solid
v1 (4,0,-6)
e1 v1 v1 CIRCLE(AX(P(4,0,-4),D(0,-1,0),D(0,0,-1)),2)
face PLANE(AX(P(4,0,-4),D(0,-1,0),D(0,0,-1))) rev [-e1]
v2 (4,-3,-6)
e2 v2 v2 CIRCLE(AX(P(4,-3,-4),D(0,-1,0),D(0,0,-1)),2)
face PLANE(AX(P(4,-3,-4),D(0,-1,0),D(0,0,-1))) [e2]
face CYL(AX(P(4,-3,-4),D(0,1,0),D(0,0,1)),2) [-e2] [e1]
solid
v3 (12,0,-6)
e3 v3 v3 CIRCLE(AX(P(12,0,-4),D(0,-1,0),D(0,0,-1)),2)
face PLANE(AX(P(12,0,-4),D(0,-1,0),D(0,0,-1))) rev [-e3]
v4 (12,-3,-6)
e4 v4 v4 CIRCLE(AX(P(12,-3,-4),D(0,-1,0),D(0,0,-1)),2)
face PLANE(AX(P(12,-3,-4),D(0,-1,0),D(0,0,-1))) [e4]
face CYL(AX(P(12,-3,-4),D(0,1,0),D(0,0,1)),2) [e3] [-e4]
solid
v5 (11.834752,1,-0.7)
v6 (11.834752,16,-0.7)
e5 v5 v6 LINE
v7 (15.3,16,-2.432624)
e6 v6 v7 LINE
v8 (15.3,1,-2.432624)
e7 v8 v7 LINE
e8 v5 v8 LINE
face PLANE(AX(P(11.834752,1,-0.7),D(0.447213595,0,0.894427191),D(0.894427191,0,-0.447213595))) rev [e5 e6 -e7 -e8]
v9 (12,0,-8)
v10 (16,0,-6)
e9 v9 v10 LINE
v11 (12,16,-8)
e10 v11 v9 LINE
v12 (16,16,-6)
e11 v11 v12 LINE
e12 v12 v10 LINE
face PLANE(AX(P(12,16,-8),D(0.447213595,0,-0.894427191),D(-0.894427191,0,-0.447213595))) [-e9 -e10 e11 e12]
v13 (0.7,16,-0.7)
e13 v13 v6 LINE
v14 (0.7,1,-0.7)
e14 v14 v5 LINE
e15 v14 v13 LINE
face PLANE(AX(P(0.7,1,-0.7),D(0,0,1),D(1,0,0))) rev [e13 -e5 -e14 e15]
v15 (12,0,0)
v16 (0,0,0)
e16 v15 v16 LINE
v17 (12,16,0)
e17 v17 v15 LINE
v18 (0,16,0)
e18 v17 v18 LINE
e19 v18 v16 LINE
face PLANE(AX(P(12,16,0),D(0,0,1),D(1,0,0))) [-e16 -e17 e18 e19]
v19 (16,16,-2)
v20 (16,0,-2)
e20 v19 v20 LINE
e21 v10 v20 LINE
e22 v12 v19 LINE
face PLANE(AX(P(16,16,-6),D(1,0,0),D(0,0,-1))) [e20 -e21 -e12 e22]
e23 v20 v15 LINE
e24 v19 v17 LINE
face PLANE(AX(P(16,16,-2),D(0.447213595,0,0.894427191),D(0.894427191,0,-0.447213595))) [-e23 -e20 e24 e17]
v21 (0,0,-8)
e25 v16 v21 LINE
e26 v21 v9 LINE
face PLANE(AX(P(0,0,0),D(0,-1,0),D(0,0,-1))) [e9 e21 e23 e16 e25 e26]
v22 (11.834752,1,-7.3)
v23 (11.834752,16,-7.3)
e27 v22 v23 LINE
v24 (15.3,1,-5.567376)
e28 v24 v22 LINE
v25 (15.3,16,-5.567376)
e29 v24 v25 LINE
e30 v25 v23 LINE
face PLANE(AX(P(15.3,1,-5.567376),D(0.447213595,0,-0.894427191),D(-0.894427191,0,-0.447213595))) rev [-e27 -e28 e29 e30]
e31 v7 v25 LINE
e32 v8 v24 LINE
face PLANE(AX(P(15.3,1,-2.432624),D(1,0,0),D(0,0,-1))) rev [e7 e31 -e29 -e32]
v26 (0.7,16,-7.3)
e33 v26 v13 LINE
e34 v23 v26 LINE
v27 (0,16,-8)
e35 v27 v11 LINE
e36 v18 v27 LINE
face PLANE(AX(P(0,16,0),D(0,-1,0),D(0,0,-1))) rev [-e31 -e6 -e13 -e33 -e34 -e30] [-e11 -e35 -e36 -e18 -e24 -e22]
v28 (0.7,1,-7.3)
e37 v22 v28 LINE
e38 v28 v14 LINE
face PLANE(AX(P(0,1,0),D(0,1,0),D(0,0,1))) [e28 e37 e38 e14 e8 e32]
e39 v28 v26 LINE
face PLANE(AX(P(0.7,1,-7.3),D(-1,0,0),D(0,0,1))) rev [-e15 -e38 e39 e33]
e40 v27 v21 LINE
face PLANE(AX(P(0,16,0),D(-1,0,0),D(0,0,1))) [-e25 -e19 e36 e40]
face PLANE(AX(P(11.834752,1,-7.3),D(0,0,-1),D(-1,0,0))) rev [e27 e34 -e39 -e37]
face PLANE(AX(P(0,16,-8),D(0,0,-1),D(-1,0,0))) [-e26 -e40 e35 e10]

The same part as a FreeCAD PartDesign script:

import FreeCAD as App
import Part
import Sketcher

V = App.Vector
Q = App.Units.Quantity

doc = App.newDocument("Part")
body = doc.addObject("PartDesign::Body", "Body")

# Sketch on XZ plane
sketch1 = body.newObject("Sketcher::SketchObject", "Sketch")
sketch1.AttachmentSupport = (doc.getObject("XZ_Plane"), [""])
sketch1.MapMode = "FlatFace"
sketch1.addGeometry(Part.LineSegment(V(0, -8, 0), V(0, 0, 0)), False)
sketch1.addGeometry(Part.LineSegment(V(0, 0, 0), V(12, 0, 0)), False)
sketch1.addGeometry(Part.LineSegment(V(12, 0, 0), V(16, -2, 0)), False)
sketch1.addGeometry(Part.LineSegment(V(16, -2, 0), V(16, -6, 0)), False)
sketch1.addGeometry(Part.LineSegment(V(16, -6, 0), V(12, -8, 0)), False)
sketch1.addGeometry(Part.LineSegment(V(12, -8, 0), V(0, -8, 0)), False)
sketch1.addConstraint(Sketcher.Constraint("Coincident", 0, 2, 1, 1))
sketch1.addConstraint(Sketcher.Constraint("Coincident", 1, 2, 2, 1))
sketch1.addConstraint(Sketcher.Constraint("Coincident", 2, 2, 3, 1))
sketch1.addConstraint(Sketcher.Constraint("Coincident", 3, 2, 4, 1))
sketch1.addConstraint(Sketcher.Constraint("Coincident", 4, 2, 5, 1))
sketch1.addConstraint(Sketcher.Constraint("Coincident", 5, 2, 0, 1))
sketch1.addConstraint(Sketcher.Constraint("Vertical", 0))
sketch1.addConstraint(Sketcher.Constraint("Horizontal", 1))
sketch1.addConstraint(Sketcher.Constraint("Vertical", 3))
sketch1.addConstraint(Sketcher.Constraint("Horizontal", 5))
sketch1.addConstraint(Sketcher.Constraint("Coincident", 0, 2, -1, 1))
sketch1.addConstraint(Sketcher.Constraint("Vertical", 1, 2, 4, 2))
sketch1.addConstraint(Sketcher.Constraint("Equal", 2, 4))
sketch1.addConstraint(Sketcher.Constraint("DistanceX", 1, 1, 1, 2, Q("12 mm")))
sketch1.addConstraint(Sketcher.Constraint("DistanceY", 0, 1, 0, 2, Q("8 mm")))
sketch1.addConstraint(Sketcher.Constraint("DistanceY", 3, 2, 3, 1, Q("4 mm")))
sketch1.addConstraint(Sketcher.Constraint("DistanceX", -1, 1, 2, 2, Q("16 mm")))
pad1 = body.newObject("PartDesign::Pad", "Pad")
pad1.Profile = sketch1
pad1.Length = 16
pad1.Reversed = True

# Sketch on XZ plane
sketch2 = body.newObject("Sketcher::SketchObject", "Sketch001")
sketch2.AttachmentSupport = (doc.getObject("XZ_Plane"), [""])
sketch2.MapMode = "FlatFace"
sketch2.AttachmentOffset = App.Placement(V(0, 0, -16), App.Rotation())
sketch2.addGeometry(Part.LineSegment(V(11.8, -0.7, 0), V(15.3, -2.4, 0)), False)
sketch2.addGeometry(Part.LineSegment(V(15.3, -2.4, 0), V(15.3, -5.6, 0)), False)
sketch2.addGeometry(Part.LineSegment(V(15.3, -5.6, 0), V(11.8, -7.3, 0)), False)
sketch2.addGeometry(Part.LineSegment(V(11.8, -7.3, 0), V(0.7, -7.3, 0)), False)
sketch2.addGeometry(Part.LineSegment(V(0.7, -7.3, 0), V(0.7, -0.7, 0)), False)
sketch2.addGeometry(Part.LineSegment(V(0.7, -0.7, 0), V(11.8, -0.7, 0)), False)
sketch2.addConstraint(Sketcher.Constraint("Coincident", 0, 2, 1, 1))
sketch2.addConstraint(Sketcher.Constraint("Coincident", 1, 2, 2, 1))
sketch2.addConstraint(Sketcher.Constraint("Coincident", 2, 2, 3, 1))
sketch2.addConstraint(Sketcher.Constraint("Coincident", 3, 2, 4, 1))
sketch2.addConstraint(Sketcher.Constraint("Coincident", 4, 2, 5, 1))
sketch2.addConstraint(Sketcher.Constraint("Coincident", 5, 2, 0, 1))
sketch2.addConstraint(Sketcher.Constraint("Vertical", 1))
sketch2.addConstraint(Sketcher.Constraint("Horizontal", 3))
sketch2.addConstraint(Sketcher.Constraint("Vertical", 4))
sketch2.addConstraint(Sketcher.Constraint("Horizontal", 5))
sketch2.addConstraint(Sketcher.Constraint("Vertical", 2, 2, 5, 2))
sketch2.addConstraint(Sketcher.Constraint("Equal", 0, 2))
sketch2.addConstraint(Sketcher.Constraint("DistanceY", 4, 1, 4, 2, Q("6.6 mm")))
sketch2.addConstraint(Sketcher.Constraint("DistanceX", -1, 1, 0, 2, Q("15.3 mm")))
sketch2.addConstraint(Sketcher.Constraint("DistanceY", 2, 2, -1, 1, Q("7.3 mm")))
sketch2.addConstraint(Sketcher.Constraint("DistanceX", -1, 1, 3, 2, Q("0.7 mm")))
sketch2.addConstraint(Sketcher.Constraint("DistanceX", 3, 2, 3, 1, Q("11.134752 mm")))
sketch2.addConstraint(Sketcher.Constraint("DistanceY", 1, 2, 1, 1, Q("3.134752 mm")))
pocket1 = body.newObject("PartDesign::Pocket", "Pocket")
pocket1.Profile = sketch2
pocket1.Length = 15
pocket1.Reversed = True
body2 = doc.addObject("PartDesign::Body", "Body001")

# Sketch on XZ plane
sketch3 = body2.newObject("Sketcher::SketchObject", "Sketch002")
sketch3.AttachmentSupport = (doc.getObject("XZ_Plane001"), [""])
sketch3.MapMode = "FlatFace"
sketch3.addGeometry(Part.Circle(V(4, -4, 0), V(0, 0, 1), 2), False)
sketch3.addConstraint(Sketcher.Constraint("Diameter", 0, Q("4 mm")))
sketch3.addConstraint(Sketcher.Constraint("DistanceX", -1, 1, 0, 3, Q("4 mm")))
sketch3.addConstraint(Sketcher.Constraint("DistanceY", 0, 3, -1, 1, Q("4 mm")))
pad2 = body2.newObject("PartDesign::Pad", "Pad001")
pad2.Profile = sketch3
pad2.Length = 3
body3 = doc.addObject("PartDesign::Body", "Body002")

# Sketch on XZ plane
sketch4 = body3.newObject("Sketcher::SketchObject", "Sketch003")
sketch4.AttachmentSupport = (doc.getObject("XZ_Plane002"), [""])
sketch4.MapMode = "FlatFace"
sketch4.addGeometry(Part.Circle(V(12, -4, 0), V(0, 0, 1), 2), False)
sketch4.addConstraint(Sketcher.Constraint("Diameter", 0, Q("4 mm")))
sketch4.addConstraint(Sketcher.Constraint("DistanceX", -1, 1, 0, 3, Q("12 mm")))
sketch4.addConstraint(Sketcher.Constraint("DistanceY", 0, 3, -1, 1, Q("4 mm")))
pad3 = body3.newObject("PartDesign::Pad", "Pad002")
pad3.Profile = sketch4
pad3.Length = 3

doc.recompute()
